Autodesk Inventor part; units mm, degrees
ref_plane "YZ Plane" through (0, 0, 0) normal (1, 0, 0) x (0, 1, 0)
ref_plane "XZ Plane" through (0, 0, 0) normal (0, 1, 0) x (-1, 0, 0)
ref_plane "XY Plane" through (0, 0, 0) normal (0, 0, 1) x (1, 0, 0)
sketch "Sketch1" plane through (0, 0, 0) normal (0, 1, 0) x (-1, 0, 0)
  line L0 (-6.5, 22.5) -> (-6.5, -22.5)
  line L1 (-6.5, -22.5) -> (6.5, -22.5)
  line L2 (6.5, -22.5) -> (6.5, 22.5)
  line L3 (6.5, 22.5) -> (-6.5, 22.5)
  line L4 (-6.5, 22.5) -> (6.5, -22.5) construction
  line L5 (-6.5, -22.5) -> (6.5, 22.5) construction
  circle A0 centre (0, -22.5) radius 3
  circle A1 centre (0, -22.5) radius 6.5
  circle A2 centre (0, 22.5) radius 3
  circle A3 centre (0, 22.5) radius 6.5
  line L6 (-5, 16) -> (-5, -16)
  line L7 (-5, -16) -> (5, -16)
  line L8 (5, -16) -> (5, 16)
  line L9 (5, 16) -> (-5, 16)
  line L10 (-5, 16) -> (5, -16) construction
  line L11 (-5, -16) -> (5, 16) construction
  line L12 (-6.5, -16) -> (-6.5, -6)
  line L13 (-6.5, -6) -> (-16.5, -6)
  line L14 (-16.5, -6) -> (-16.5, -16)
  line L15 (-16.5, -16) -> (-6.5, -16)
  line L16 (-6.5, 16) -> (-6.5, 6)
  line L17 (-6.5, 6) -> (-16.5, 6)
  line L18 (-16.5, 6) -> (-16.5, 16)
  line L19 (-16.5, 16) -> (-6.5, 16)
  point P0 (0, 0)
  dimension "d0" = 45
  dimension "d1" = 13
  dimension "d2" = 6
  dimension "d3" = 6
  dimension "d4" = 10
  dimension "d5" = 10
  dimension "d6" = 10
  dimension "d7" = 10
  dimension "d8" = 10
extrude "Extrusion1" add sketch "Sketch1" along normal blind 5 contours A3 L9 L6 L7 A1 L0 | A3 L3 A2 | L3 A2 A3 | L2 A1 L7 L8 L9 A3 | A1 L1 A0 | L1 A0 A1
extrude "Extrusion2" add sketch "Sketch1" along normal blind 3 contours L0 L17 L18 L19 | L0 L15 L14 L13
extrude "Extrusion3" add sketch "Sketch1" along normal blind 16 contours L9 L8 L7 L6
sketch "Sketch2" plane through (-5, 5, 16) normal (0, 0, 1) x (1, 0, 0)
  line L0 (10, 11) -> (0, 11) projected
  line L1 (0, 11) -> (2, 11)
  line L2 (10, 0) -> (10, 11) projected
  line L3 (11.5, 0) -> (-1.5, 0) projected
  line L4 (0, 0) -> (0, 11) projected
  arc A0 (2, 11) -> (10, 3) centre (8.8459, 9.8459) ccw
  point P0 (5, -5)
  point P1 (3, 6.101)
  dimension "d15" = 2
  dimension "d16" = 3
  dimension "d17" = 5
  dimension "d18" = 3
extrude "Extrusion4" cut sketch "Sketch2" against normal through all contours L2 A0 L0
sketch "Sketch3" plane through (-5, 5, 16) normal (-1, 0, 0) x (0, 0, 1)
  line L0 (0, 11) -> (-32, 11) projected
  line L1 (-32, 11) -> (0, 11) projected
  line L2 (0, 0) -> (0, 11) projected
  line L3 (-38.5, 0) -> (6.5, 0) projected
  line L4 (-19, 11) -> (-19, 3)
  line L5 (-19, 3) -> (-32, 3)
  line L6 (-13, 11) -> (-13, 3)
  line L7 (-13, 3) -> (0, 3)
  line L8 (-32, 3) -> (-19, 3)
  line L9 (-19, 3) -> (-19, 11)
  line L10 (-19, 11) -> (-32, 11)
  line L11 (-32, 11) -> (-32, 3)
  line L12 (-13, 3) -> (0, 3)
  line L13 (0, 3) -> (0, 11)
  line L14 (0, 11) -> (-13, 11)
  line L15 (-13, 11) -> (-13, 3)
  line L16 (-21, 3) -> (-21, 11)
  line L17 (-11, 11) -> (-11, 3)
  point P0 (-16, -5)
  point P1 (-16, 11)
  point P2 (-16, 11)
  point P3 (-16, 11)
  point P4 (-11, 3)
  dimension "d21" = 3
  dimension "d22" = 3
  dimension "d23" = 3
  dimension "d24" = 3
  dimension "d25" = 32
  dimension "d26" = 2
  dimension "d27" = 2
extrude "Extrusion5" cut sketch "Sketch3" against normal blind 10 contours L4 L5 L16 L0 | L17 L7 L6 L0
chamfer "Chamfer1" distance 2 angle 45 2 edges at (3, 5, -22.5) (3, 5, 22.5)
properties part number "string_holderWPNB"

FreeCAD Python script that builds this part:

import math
import FreeCAD as App
import Part
import Sketcher

V = App.Vector
Q = App.Units.Quantity


def edges_at(feature, points):
    """Names of the edges that pass closest to the given points."""
    edges = feature.Shape.Edges
    near = lambda p: min(range(len(edges)), key=lambda i: edges[i].distToShape(Part.Vertex(*p))[0])
    return sorted({f"Edge{near(p) + 1}" for p in points})

doc = App.newDocument("Part")
body = doc.addObject("PartDesign::Body", "Body")

sketch1 = body.newObject("Sketcher::SketchObject", "Sketch")
sketch1.AttachmentSupport = (doc.getObject("XZ_Plane"), [""])
sketch1.MapMode = "FlatFace"
sketch1.addGeometry([
    Part.ArcOfCircle(Part.Circle(V(0, -22.5, 0), V(0, 0, 1), 6.5), math.radians(180), math.radians(360)),
    Part.LineSegment(V(-6.5, -22.5, 0), V(-6.5, 22.5, 0)),
    Part.ArcOfCircle(Part.Circle(V(0, 22.5, 0), V(0, 0, 1), 6.5), math.radians(0), math.radians(180)),
    Part.LineSegment(V(6.5, 22.5, 0), V(6.5, -22.5, 0)),
    Part.LineSegment(V(5, 16, 0), V(-5, 16, 0)),
    Part.LineSegment(V(-5, 16, 0), V(-5, -16, 0)),
    Part.LineSegment(V(-5, -16, 0), V(5, -16, 0)),
    Part.LineSegment(V(5, -16, 0), V(5, 16, 0)),
    Part.Circle(V(0, 22.5, 0), V(0, 0, 1), 3),
    Part.Circle(V(0, -22.5, 0), V(0, 0, 1), 3),
], False)
sketch1.addConstraint([
    Sketcher.Constraint("Tangent", 0, 1, 1, 1),
    Sketcher.Constraint("Tangent", 1, 2, 2, 2),
    Sketcher.Constraint("Tangent", 2, 1, 3, 1),
    Sketcher.Constraint("Tangent", 3, 2, 0, 2),
    Sketcher.Constraint("Coincident", 4, 2, 5, 1),
    Sketcher.Constraint("Coincident", 5, 2, 6, 1),
    Sketcher.Constraint("Coincident", 6, 2, 7, 1),
    Sketcher.Constraint("Coincident", 7, 2, 4, 1),
    Sketcher.Constraint("Vertical", 1),
    Sketcher.Constraint("Vertical", 3),
    Sketcher.Constraint("Horizontal", 4),
    Sketcher.Constraint("Vertical", 5),
    Sketcher.Constraint("Horizontal", 6),
    Sketcher.Constraint("Vertical", 7),
    Sketcher.Constraint("Coincident", 8, 3, 2, 3),
    Sketcher.Constraint("Coincident", 9, 3, 0, 3),
    Sketcher.Constraint("Equal", 8, 9),
    Sketcher.Constraint("Symmetric", 0, 3, 2, 3, -1, 1),
    Sketcher.Constraint("Symmetric", 4, 2, 6, 2, -1, 1),
    Sketcher.Constraint("Diameter", 8, Q("6 mm")),
    Sketcher.Constraint("Radius", 0, Q("6.5 mm")),
    Sketcher.Constraint("DistanceX", 4, 2, 4, 1, Q("10 mm")),
    Sketcher.Constraint("DistanceY", 1, 1, 1, 2, Q("45 mm")),
    Sketcher.Constraint("DistanceY", 5, 2, 5, 1, Q("32 mm")),
])
pad1 = body.newObject("PartDesign::Pad", "Pad")
pad1.Profile = sketch1
pad1.Length = 5
pad1.Reversed = True

sketch2 = body.newObject("Sketcher::SketchObject", "Sketch001")
sketch2.AttachmentSupport = (doc.getObject("XZ_Plane"), [""])
sketch2.MapMode = "FlatFace"
sketch2.addGeometry([
    Part.LineSegment(V(6.5, 6, 0), V(6.5, 16, 0)),
    Part.LineSegment(V(6.5, 16, 0), V(16.5, 16, 0)),
    Part.LineSegment(V(16.5, 16, 0), V(16.5, 6, 0)),
    Part.LineSegment(V(16.5, 6, 0), V(6.5, 6, 0)),
    Part.LineSegment(V(6.5, -16, 0), V(6.5, -6, 0)),
    Part.LineSegment(V(6.5, -6, 0), V(16.5, -6, 0)),
    Part.LineSegment(V(16.5, -6, 0), V(16.5, -16, 0)),
    Part.LineSegment(V(16.5, -16, 0), V(6.5, -16, 0)),
], False)
sketch2.addConstraint([
    Sketcher.Constraint("Coincident", 0, 2, 1, 1),
    Sketcher.Constraint("Coincident", 1, 2, 2, 1),
    Sketcher.Constraint("Coincident", 2, 2, 3, 1),
    Sketcher.Constraint("Coincident", 3, 2, 0, 1),
    Sketcher.Constraint("Coincident", 4, 2, 5, 1),
    Sketcher.Constraint("Coincident", 5, 2, 6, 1),
    Sketcher.Constraint("Coincident", 6, 2, 7, 1),
    Sketcher.Constraint("Coincident", 7, 2, 4, 1),
    Sketcher.Constraint("Vertical", 0),
    Sketcher.Constraint("Horizontal", 1),
    Sketcher.Constraint("Vertical", 2),
    Sketcher.Constraint("Horizontal", 3),
    Sketcher.Constraint("Vertical", 4),
    Sketcher.Constraint("Horizontal", 5),
    Sketcher.Constraint("Vertical", 6),
    Sketcher.Constraint("Horizontal", 7),
    Sketcher.Constraint("Symmetric", 3, 2, 4, 2, -1),
    Sketcher.Constraint("Symmetric", 1, 2, 6, 2, -1),
    Sketcher.Constraint("Equal", 7, 0),
    Sketcher.Constraint("DistanceX", 1, 1, 1, 2, Q("10 mm")),
    Sketcher.Constraint("DistanceY", -1, 1, 2, 2, Q("6 mm")),
    Sketcher.Constraint("DistanceX", -1, 1, 0, 2, Q("6.5 mm")),
])
pad2 = body.newObject("PartDesign::Pad", "Pad001")
pad2.Profile = sketch2
pad2.Length = 3
pad2.Reversed = True

sketch3 = body.newObject("Sketcher::SketchObject", "Sketch002")
sketch3.AttachmentSupport = (doc.getObject("XZ_Plane"), [""])
sketch3.MapMode = "FlatFace"
sketch3.addGeometry([
    Part.LineSegment(V(-5, 16, 0), V(5, 16, 0)),
    Part.LineSegment(V(5, 16, 0), V(5, -16, 0)),
    Part.LineSegment(V(5, -16, 0), V(-5, -16, 0)),
    Part.LineSegment(V(-5, -16, 0), V(-5, 16, 0)),
], False)
sketch3.addConstraint([
    Sketcher.Constraint("Coincident", 0, 2, 1, 1),
    Sketcher.Constraint("Coincident", 1, 2, 2, 1),
    Sketcher.Constraint("Coincident", 2, 2, 3, 1),
    Sketcher.Constraint("Coincident", 3, 2, 0, 1),
    Sketcher.Constraint("Horizontal", 0),
    Sketcher.Constraint("Vertical", 1),
    Sketcher.Constraint("Horizontal", 2),
    Sketcher.Constraint("Vertical", 3),
    Sketcher.Constraint("Symmetric", 0, 2, 2, 2, -1, 1),
    Sketcher.Constraint("DistanceX", 0, 1, 0, 2, Q("10 mm")),
    Sketcher.Constraint("DistanceY", 1, 2, 1, 1, Q("32 mm")),
])
pad3 = body.newObject("PartDesign::Pad", "Pad002")
pad3.Profile = sketch3
pad3.Length = 16
pad3.Reversed = True

sketch4 = body.newObject("Sketcher::SketchObject", "Sketch003")
sketch4.AttachmentSupport = (doc.getObject("XY_Plane"), [""])
sketch4.MapMode = "FlatFace"
sketch4.AttachmentOffset = App.Placement(V(0, 0, 16), App.Rotation())
sketch4.addGeometry([
    Part.LineSegment(V(5, 8, 0), V(5, 16, 0)),
    Part.LineSegment(V(5, 16, 0), V(-3, 16, 0)),
    Part.ArcOfCircle(Part.Circle(V(3.8459, 14.8459, 0), V(0, 0, 1), 6.942499), math.radians(170.4309), math.radians(279.5691)),
], False)
sketch4.addConstraint([
    Sketcher.Constraint("Coincident", 0, 2, 1, 1),
    Sketcher.Constraint("Coincident", 1, 2, 2, 1),
    Sketcher.Constraint("Coincident", 2, 2, 0, 1),
    Sketcher.Constraint("Vertical", 0),
    Sketcher.Constraint("Horizontal", 1),
    Sketcher.Constraint("Equal", 1, 0),
    Sketcher.Constraint("DistanceX", -1, 1, 0, 2, Q("5 mm")),
    Sketcher.Constraint("DistanceX", 1, 2, -1, 1, Q("3 mm")),
    Sketcher.Constraint("DistanceY", -1, 1, 0, 2, Q("16 mm")),
    Sketcher.Constraint("Radius", 2, Q("6.9425 mm")),
])
pocket1 = body.newObject("PartDesign::Pocket", "Pocket")
pocket1.Profile = sketch4
pocket1.Type = "ThroughAll"

sketch5 = body.newObject("Sketcher::SketchObject", "Sketch004")
sketch5.AttachmentSupport = (doc.getObject("YZ_Plane"), [""])
sketch5.MapMode = "FlatFace"
sketch5.AttachmentOffset = App.Placement(V(0, 0, -5), App.Rotation())
sketch5.addGeometry([
    Part.LineSegment(V(8, -3, 0), V(16, -3, 0)),
    Part.LineSegment(V(16, -3, 0), V(16, -5, 0)),
    Part.LineSegment(V(16, -5, 0), V(8, -5, 0)),
    Part.LineSegment(V(8, -5, 0), V(8, -3, 0)),
    Part.LineSegment(V(8, 5, 0), V(16, 5, 0)),
    Part.LineSegment(V(16, 5, 0), V(16, 3, 0)),
    Part.LineSegment(V(16, 3, 0), V(8, 3, 0)),
    Part.LineSegment(V(8, 3, 0), V(8, 5, 0)),
], False)
sketch5.addConstraint([
    Sketcher.Constraint("Coincident", 0, 2, 1, 1),
    Sketcher.Constraint("Coincident", 1, 2, 2, 1),
    Sketcher.Constraint("Coincident", 2, 2, 3, 1),
    Sketcher.Constraint("Coincident", 3, 2, 0, 1),
    Sketcher.Constraint("Coincident", 4, 2, 5, 1),
    Sketcher.Constraint("Coincident", 5, 2, 6, 1),
    Sketcher.Constraint("Coincident", 6, 2, 7, 1),
    Sketcher.Constraint("Coincident", 7, 2, 4, 1),
    Sketcher.Constraint("Horizontal", 0),
    Sketcher.Constraint("Vertical", 1),
    Sketcher.Constraint("Horizontal", 2),
    Sketcher.Constraint("Vertical", 3),
    Sketcher.Constraint("Horizontal", 4),
    Sketcher.Constraint("Vertical", 5),
    Sketcher.Constraint("Horizontal", 6),
    Sketcher.Constraint("Vertical", 7),
    Sketcher.Constraint("Symmetric", 1, 2, 4, 2, -1),
    Sketcher.Constraint("Symmetric", 3, 2, 6, 2, -1),
    Sketcher.Constraint("DistanceY", 1, 2, 1, 1, Q("2 mm")),
    Sketcher.Constraint("DistanceY", 0, 2, -1, 1, Q("3 mm")),
    Sketcher.Constraint("DistanceX", 0, 1, 0, 2, Q("8 mm")),
    Sketcher.Constraint("DistanceX", -1, 1, 0, 2, Q("16 mm")),
])
pocket2 = body.newObject("PartDesign::Pocket", "Pocket001")
pocket2.Profile = sketch5
pocket2.Length = 10
pocket2.Reversed = True
doc.recompute()

chamfer = body.newObject("PartDesign::Chamfer", "Chamfer")
chamfer.Base = (pocket2, edges_at(pocket2, [(3, 5, -22.5), (3, 5, 22.5)]))
chamfer.Size = 2

doc.recompute()
